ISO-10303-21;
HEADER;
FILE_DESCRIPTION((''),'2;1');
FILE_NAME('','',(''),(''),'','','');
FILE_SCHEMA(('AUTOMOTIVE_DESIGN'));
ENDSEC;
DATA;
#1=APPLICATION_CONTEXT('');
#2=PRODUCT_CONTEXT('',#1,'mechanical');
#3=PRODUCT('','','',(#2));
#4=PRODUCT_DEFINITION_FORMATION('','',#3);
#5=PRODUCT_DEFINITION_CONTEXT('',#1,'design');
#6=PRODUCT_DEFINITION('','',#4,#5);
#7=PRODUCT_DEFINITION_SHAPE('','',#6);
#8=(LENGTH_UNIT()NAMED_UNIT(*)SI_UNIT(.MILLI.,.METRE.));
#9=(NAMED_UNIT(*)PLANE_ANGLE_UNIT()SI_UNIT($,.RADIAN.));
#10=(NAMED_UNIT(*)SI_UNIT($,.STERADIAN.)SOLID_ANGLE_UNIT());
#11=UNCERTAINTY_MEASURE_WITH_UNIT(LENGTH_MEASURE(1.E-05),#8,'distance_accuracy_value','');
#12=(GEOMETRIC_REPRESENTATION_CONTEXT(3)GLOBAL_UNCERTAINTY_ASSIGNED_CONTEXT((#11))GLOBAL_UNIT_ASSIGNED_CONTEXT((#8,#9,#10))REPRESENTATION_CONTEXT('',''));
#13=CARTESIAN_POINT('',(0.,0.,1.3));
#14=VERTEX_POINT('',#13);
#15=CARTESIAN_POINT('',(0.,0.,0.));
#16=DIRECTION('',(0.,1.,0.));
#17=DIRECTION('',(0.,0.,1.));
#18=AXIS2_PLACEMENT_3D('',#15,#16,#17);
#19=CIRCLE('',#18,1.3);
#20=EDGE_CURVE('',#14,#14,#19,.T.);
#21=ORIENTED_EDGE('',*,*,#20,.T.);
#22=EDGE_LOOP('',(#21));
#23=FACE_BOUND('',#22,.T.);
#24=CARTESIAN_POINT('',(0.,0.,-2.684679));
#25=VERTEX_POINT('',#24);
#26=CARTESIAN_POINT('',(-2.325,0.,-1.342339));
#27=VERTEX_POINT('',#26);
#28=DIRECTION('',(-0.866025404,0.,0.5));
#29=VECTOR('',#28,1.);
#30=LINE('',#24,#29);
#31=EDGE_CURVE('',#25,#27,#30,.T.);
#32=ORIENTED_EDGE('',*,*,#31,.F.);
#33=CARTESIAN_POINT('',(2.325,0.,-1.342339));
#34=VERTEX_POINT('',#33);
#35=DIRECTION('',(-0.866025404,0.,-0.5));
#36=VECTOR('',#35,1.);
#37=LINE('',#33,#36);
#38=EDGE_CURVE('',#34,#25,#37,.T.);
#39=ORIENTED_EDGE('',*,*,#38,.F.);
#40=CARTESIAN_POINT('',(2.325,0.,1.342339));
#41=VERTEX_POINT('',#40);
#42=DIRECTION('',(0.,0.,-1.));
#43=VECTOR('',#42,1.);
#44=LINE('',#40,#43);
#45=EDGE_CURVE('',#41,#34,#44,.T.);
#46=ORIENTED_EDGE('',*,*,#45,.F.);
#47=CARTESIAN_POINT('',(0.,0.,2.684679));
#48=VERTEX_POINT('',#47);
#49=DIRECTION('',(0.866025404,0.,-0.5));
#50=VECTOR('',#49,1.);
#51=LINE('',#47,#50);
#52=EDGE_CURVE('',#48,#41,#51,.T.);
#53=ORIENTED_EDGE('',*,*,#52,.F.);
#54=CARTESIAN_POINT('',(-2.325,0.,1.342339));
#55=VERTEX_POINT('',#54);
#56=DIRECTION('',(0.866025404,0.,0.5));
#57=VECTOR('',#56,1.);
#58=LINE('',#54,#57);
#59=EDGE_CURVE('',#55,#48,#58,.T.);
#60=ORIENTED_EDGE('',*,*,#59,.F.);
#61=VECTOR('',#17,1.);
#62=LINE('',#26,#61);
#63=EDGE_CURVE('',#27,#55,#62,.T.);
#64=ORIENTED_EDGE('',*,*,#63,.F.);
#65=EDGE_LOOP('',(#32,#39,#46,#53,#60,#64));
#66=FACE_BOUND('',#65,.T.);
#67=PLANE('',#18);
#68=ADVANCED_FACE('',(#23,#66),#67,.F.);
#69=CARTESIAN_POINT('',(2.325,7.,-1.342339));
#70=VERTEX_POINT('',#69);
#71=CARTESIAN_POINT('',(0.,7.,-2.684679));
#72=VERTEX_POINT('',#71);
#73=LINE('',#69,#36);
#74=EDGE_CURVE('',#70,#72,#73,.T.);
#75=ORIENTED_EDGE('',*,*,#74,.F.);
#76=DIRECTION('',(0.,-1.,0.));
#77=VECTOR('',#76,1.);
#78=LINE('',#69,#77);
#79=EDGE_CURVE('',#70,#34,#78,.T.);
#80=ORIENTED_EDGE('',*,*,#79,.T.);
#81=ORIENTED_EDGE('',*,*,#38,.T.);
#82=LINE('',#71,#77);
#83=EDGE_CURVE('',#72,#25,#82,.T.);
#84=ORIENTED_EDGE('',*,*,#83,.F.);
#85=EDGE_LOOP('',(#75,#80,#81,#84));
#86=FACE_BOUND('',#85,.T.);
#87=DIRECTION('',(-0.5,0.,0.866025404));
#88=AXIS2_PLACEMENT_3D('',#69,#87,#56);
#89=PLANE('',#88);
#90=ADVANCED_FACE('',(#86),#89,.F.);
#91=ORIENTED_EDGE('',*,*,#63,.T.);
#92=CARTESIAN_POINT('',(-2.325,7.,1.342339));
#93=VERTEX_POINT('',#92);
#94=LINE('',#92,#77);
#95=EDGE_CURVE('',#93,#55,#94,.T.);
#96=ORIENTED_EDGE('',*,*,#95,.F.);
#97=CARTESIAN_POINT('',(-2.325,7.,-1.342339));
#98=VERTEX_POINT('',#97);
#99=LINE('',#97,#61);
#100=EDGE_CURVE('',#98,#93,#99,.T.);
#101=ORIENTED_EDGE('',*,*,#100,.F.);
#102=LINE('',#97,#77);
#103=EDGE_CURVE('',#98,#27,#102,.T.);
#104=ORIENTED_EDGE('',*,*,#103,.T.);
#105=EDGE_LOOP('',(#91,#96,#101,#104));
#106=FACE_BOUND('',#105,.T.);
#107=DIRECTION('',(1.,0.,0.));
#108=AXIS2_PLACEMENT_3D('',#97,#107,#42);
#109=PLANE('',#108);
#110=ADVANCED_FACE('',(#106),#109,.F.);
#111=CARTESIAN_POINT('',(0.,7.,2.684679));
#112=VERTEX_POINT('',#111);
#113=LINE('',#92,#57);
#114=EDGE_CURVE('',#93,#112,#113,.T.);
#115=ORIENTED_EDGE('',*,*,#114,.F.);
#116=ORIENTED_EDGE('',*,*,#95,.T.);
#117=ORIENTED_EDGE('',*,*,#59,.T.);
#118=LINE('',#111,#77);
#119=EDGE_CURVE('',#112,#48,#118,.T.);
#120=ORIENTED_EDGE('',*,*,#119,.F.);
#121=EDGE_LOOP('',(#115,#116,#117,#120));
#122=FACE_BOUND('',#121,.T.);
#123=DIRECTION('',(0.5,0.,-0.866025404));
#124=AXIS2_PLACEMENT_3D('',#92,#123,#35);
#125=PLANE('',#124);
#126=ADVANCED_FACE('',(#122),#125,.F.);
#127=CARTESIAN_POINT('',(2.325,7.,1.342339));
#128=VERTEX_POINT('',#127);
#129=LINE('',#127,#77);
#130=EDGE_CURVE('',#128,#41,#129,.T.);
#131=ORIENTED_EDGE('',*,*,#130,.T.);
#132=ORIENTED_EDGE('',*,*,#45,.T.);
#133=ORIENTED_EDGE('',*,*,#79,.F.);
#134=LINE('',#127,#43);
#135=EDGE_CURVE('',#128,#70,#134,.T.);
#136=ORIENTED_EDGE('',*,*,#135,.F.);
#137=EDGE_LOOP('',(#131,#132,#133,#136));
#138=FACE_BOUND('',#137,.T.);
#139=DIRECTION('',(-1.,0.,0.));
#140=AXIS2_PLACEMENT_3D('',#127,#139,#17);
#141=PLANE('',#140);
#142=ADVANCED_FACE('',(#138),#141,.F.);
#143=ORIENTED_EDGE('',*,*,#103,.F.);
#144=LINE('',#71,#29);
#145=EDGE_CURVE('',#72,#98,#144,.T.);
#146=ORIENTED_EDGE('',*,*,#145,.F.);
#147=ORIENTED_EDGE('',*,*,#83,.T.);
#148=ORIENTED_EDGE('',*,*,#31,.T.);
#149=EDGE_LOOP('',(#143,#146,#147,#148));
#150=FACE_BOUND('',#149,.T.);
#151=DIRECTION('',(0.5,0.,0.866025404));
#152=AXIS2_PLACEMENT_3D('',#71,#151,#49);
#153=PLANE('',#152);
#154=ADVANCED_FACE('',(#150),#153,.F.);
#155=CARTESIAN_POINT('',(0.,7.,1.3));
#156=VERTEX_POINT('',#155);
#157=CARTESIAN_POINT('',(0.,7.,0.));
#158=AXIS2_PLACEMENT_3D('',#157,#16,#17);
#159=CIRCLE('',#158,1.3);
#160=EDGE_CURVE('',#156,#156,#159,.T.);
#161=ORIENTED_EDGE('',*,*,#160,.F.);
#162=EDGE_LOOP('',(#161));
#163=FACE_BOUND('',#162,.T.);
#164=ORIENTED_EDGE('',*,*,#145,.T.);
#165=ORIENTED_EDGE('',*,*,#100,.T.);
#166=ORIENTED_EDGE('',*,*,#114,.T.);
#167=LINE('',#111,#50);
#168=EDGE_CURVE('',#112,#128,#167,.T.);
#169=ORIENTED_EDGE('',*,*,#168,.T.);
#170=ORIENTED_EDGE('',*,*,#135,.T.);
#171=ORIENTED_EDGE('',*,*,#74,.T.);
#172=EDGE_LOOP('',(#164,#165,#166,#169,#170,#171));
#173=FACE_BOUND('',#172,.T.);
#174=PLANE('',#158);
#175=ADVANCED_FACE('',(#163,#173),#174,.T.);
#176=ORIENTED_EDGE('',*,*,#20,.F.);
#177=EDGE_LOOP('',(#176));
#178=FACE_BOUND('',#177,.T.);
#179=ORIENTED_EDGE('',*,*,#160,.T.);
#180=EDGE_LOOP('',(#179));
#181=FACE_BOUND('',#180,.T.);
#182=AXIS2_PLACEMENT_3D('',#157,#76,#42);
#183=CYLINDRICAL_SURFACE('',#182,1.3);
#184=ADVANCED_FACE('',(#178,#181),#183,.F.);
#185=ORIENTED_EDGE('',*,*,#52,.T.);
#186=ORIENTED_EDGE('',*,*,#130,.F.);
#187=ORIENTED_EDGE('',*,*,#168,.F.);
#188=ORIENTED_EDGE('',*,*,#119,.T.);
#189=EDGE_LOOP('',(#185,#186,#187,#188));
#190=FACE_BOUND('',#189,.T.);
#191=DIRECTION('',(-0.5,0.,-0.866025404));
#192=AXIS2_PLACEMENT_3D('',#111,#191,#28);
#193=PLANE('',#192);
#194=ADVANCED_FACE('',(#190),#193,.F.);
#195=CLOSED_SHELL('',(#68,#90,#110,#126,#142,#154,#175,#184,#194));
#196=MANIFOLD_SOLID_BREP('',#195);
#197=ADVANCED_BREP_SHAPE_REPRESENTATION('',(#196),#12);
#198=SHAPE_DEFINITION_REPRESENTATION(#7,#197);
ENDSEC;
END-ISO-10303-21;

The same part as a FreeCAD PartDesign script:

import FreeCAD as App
import Part
import Sketcher
Q = App.Units.Quantity

doc = App.newDocument("Part")
body = doc.addObject("PartDesign::Body", "Body")

sketch1 = body.newObject("Sketcher::SketchObject", "Sketch")
sketch1.AttachmentSupport = (doc.getObject("XZ_Plane"), [""])
sketch1.MapMode = "FlatFace"
sketch1.addGeometry(Part.LineSegment(App.Vector(0, 2.7, 0), App.Vector(2.3, 1.3, 0)), False)
sketch1.addGeometry(Part.LineSegment(App.Vector(2.3, 1.3, 0), App.Vector(2.3, -1.3, 0)), False)
sketch1.addGeometry(Part.LineSegment(App.Vector(2.3, -1.3, 0), App.Vector(0, -2.7, 0)), False)
sketch1.addGeometry(Part.LineSegment(App.Vector(0, -2.7, 0), App.Vector(-2.3, -1.3, 0)), False)
sketch1.addGeometry(Part.LineSegment(App.Vector(-2.3, -1.3, 0), App.Vector(-2.3, 1.3, 0)), False)
sketch1.addGeometry(Part.LineSegment(App.Vector(-2.3, 1.3, 0), App.Vector(0, 2.7, 0)), False)
sketch1.addGeometry(Part.Circle(App.Vector(0, 0, 0), App.Vector(0, 0, 1), 1.3), False)
sketch1.addConstraint(Sketcher.Constraint("Coincident", 0, 2, 1, 1))
sketch1.addConstraint(Sketcher.Constraint("Coincident", 1, 2, 2, 1))
sketch1.addConstraint(Sketcher.Constraint("Coincident", 2, 2, 3, 1))
sketch1.addConstraint(Sketcher.Constraint("Coincident", 3, 2, 4, 1))
sketch1.addConstraint(Sketcher.Constraint("Coincident", 4, 2, 5, 1))
sketch1.addConstraint(Sketcher.Constraint("Coincident", 5, 2, 0, 1))
sketch1.addConstraint(Sketcher.Constraint("Vertical", 1))
sketch1.addConstraint(Sketcher.Constraint("Vertical", 4))
sketch1.addConstraint(Sketcher.Constraint("Coincident", 6, 3, -1, 1))
sketch1.addConstraint(Sketcher.Constraint("Symmetric", 0, 2, 3, 2, -1, 1))
sketch1.addConstraint(Sketcher.Constraint("Symmetric", 2, 2, 5, 2, -1, 1))
sketch1.addConstraint(Sketcher.Constraint("PointOnObject", 2, 2, -2))
sketch1.addConstraint(Sketcher.Constraint("Parallel", 2, 5))
sketch1.addConstraint(Sketcher.Constraint("Horizontal", 1, 2, 3, 2))
sketch1.addConstraint(Sketcher.Constraint("Diameter", 6, 2.6))
sketch1.addConstraint(Sketcher.Constraint("Angle", 0, Q("-30 deg")))
sketch1.addConstraint(Sketcher.Constraint("DistanceX", 3, 2, 1, 2, 4.65))
sketch1.addConstraint(Sketcher.Constraint("DistanceY", 1, 2, 1, 1, 2.684679))
pad1 = body.newObject("PartDesign::Pad", "Pad")
pad1.Profile = sketch1
pad1.Length = 7
pad1.Reversed = True

doc.recompute()
